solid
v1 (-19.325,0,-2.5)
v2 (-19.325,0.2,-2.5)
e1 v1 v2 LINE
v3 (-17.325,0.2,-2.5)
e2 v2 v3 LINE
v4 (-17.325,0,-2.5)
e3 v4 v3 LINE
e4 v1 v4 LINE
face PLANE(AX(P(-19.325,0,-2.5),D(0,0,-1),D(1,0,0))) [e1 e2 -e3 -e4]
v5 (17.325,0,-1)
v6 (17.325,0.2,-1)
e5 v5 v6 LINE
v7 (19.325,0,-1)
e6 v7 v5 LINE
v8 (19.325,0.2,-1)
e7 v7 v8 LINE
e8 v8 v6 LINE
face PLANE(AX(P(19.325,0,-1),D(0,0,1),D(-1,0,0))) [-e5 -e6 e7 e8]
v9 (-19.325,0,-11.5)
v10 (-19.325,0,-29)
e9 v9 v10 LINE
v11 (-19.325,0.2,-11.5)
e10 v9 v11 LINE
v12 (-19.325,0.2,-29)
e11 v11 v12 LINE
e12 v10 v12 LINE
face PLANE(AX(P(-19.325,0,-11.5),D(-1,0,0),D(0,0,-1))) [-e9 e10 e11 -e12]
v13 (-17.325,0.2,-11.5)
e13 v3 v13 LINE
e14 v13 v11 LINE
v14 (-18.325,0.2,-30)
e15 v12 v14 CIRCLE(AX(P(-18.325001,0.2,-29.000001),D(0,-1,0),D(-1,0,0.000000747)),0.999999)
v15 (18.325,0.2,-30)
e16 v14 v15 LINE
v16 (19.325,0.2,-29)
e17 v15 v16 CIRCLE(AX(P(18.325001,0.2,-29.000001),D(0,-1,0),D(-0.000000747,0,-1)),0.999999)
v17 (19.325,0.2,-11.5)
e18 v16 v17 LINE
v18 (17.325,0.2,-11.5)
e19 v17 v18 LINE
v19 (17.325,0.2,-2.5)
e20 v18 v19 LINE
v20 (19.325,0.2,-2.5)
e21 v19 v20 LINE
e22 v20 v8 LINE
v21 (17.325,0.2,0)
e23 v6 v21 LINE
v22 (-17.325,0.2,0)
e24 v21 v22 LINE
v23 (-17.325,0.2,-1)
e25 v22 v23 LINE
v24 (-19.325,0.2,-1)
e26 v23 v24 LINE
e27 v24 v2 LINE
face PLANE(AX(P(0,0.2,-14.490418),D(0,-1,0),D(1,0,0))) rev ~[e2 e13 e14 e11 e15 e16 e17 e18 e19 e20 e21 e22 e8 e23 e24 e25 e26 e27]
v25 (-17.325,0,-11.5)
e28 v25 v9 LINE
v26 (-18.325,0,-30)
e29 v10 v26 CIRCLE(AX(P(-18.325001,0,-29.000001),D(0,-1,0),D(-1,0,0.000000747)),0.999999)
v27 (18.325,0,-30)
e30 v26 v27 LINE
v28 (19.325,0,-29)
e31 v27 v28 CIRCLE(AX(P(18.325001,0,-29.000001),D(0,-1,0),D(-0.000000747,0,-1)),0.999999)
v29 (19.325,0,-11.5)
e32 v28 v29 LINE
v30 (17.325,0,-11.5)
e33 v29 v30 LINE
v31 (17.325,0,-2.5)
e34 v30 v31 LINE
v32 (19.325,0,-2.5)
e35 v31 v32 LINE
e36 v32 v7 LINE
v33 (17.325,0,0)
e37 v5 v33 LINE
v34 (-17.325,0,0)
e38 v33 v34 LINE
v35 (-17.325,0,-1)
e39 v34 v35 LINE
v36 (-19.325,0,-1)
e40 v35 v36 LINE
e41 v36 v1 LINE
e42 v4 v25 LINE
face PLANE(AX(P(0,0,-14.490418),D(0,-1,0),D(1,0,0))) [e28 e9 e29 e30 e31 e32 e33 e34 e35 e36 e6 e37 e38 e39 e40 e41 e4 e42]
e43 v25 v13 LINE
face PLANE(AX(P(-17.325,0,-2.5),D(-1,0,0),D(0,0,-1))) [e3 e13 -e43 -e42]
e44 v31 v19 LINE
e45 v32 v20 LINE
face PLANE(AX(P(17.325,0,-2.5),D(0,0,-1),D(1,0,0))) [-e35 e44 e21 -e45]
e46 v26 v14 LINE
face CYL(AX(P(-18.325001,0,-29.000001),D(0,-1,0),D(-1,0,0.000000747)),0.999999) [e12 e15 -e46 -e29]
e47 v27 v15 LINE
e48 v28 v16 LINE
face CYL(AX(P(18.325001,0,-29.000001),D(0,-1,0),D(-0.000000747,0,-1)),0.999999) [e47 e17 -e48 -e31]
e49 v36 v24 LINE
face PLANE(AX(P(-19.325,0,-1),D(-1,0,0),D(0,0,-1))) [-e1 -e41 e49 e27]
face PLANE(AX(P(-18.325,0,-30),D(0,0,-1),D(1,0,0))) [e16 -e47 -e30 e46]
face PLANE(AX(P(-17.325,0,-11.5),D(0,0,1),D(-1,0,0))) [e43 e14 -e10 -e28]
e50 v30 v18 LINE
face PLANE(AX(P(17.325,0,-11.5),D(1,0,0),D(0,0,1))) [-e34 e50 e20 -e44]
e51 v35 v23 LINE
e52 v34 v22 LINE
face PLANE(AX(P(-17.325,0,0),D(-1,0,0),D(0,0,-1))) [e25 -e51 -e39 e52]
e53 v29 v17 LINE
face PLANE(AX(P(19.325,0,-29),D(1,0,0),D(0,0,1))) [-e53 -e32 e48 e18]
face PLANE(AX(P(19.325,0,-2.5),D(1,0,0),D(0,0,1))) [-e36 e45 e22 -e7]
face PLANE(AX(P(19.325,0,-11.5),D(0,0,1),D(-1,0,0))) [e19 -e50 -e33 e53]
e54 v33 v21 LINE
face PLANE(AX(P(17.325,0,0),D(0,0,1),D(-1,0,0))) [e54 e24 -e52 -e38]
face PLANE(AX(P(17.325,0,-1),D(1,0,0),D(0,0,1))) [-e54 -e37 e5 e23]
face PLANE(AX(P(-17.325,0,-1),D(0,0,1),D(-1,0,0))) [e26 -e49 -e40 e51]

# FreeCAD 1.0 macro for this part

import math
import FreeCAD as App
import Part
import Sketcher
Q = App.Units.Quantity

doc = App.newDocument("Part")
body = doc.addObject("PartDesign::Body", "Body")

# Sketch on XZ plane
sketch1 = body.newObject("Sketcher::SketchObject", "Sketch")
sketch1.AttachmentSupport = (doc.getObject("XZ_Plane"), [""])
sketch1.MapMode = "FlatFace"
sketch1.addGeometry([
    Part.LineSegment(App.Vector(17.3, -11.5, 0), App.Vector(17.3, -2.5, 0)),  # 0
    Part.LineSegment(App.Vector(17.3, -2.5, 0), App.Vector(19.3, -2.5, 0)),  # 1
    Part.LineSegment(App.Vector(19.3, -2.5, 0), App.Vector(19.3, -1, 0)),  # 2
    Part.LineSegment(App.Vector(19.3, -1, 0), App.Vector(17.3, -1, 0)),  # 3
    Part.LineSegment(App.Vector(17.3, -1, 0), App.Vector(17.3, 0, 0)),  # 4
    Part.LineSegment(App.Vector(17.3, 0, 0), App.Vector(-17.3, 0, 0)),  # 5
    Part.LineSegment(App.Vector(-17.3, 0, 0), App.Vector(-17.3, -1, 0)),  # 6
    Part.LineSegment(App.Vector(-17.3, -1, 0), App.Vector(-19.3, -1, 0)),  # 7
    Part.LineSegment(App.Vector(-19.3, -1, 0), App.Vector(-19.3, -2.5, 0)),  # 8
    Part.LineSegment(App.Vector(-19.3, -2.5, 0), App.Vector(-17.3, -2.5, 0)),  # 9
    Part.LineSegment(App.Vector(-17.3, -2.5, 0), App.Vector(-17.3, -11.5, 0)),  # 10
    Part.LineSegment(App.Vector(-17.3, -11.5, 0), App.Vector(-19.3, -11.5, 0)),  # 11
    Part.LineSegment(App.Vector(-19.3, -11.5, 0), App.Vector(-19.3, -29, 0)),  # 12
    Part.ArcOfCircle(Part.Circle(App.Vector(-18.3, -29, 0), App.Vector(0, 0, 1), 1), math.radians(180), math.radians(270)),  # 13
    Part.LineSegment(App.Vector(-18.3, -30, 0), App.Vector(18.3, -30, 0)),  # 14
    Part.ArcOfCircle(Part.Circle(App.Vector(18.3, -29, 0), App.Vector(0, 0, 1), 1), math.radians(-90), math.radians(0)),  # 15
    Part.LineSegment(App.Vector(19.3, -29, 0), App.Vector(19.3, -11.5, 0)),  # 16
    Part.LineSegment(App.Vector(19.3, -11.5, 0), App.Vector(17.3, -11.5, 0)),  # 17
], False)
sketch1.addConstraint([
    Sketcher.Constraint("Coincident", 0, 2, 1, 1),
    Sketcher.Constraint("Coincident", 1, 2, 2, 1),
    Sketcher.Constraint("Coincident", 2, 2, 3, 1),
    Sketcher.Constraint("Coincident", 3, 2, 4, 1),
    Sketcher.Constraint("Coincident", 4, 2, 5, 1),
    Sketcher.Constraint("Coincident", 5, 2, 6, 1),
    Sketcher.Constraint("Coincident", 6, 2, 7, 1),
    Sketcher.Constraint("Coincident", 7, 2, 8, 1),
    Sketcher.Constraint("Coincident", 8, 2, 9, 1),
    Sketcher.Constraint("Coincident", 9, 2, 10, 1),
    Sketcher.Constraint("Coincident", 10, 2, 11, 1),
    Sketcher.Constraint("Coincident", 11, 2, 12, 1),
    Sketcher.Constraint("Tangent", 12, 2, 13, 1),
    Sketcher.Constraint("Tangent", 13, 2, 14, 1),
    Sketcher.Constraint("Tangent", 14, 2, 15, 1),
    Sketcher.Constraint("Tangent", 15, 2, 16, 1),
    Sketcher.Constraint("Coincident", 16, 2, 17, 1),
    Sketcher.Constraint("Coincident", 17, 2, 0, 1),
    Sketcher.Constraint("Vertical", 0),
    Sketcher.Constraint("Horizontal", 1),
    Sketcher.Constraint("Vertical", 2),
    Sketcher.Constraint("Horizontal", 3),
    Sketcher.Constraint("Vertical", 4),
    Sketcher.Constraint("Horizontal", 5),
    Sketcher.Constraint("Vertical", 6),
    Sketcher.Constraint("Horizontal", 7),
    Sketcher.Constraint("Vertical", 8),
    Sketcher.Constraint("Horizontal", 9),
    Sketcher.Constraint("Vertical", 10),
    Sketcher.Constraint("Horizontal", 11),
    Sketcher.Constraint("Vertical", 12),
    Sketcher.Constraint("Horizontal", 14),
    Sketcher.Constraint("Vertical", 16),
    Sketcher.Constraint("Horizontal", 17),
    Sketcher.Constraint("Equal", 13, 15),
    Sketcher.Constraint("Symmetric", 4, 2, 5, 2, -1, 1),
    Sketcher.Constraint("Symmetric", 2, 2, 7, 2, -2),
    Sketcher.Constraint("Symmetric", 0, 2, 9, 2, -2),
    Sketcher.Constraint("Symmetric", 11, 2, 16, 2, -2),
    Sketcher.Constraint("Vertical", 0, 2, 3, 2),
    Sketcher.Constraint("Vertical", 8, 2, 11, 2),
    Sketcher.Constraint("Radius", 13, Q("0.999999 mm")),
    Sketcher.Constraint("DistanceX", 1, 1, 1, 2, Q("2 mm")),
    Sketcher.Constraint("DistanceY", 0, 1, 0, 2, Q("9 mm")),
    Sketcher.Constraint("DistanceY", 4, 1, 4, 2, Q("1 mm")),
    Sketcher.Constraint("DistanceY", 2, 1, 2, 2, Q("1.5 mm")),
    Sketcher.Constraint("DistanceY", 12, 2, 12, 1, Q("17.5 mm")),
    Sketcher.Constraint("DistanceX", 5, 2, 5, 1, Q("34.65 mm")),
])
pad1 = body.newObject("PartDesign::Pad", "Pad")
pad1.Profile = sketch1
pad1.Length = 0.2
pad1.Reversed = True

doc.recompute()
